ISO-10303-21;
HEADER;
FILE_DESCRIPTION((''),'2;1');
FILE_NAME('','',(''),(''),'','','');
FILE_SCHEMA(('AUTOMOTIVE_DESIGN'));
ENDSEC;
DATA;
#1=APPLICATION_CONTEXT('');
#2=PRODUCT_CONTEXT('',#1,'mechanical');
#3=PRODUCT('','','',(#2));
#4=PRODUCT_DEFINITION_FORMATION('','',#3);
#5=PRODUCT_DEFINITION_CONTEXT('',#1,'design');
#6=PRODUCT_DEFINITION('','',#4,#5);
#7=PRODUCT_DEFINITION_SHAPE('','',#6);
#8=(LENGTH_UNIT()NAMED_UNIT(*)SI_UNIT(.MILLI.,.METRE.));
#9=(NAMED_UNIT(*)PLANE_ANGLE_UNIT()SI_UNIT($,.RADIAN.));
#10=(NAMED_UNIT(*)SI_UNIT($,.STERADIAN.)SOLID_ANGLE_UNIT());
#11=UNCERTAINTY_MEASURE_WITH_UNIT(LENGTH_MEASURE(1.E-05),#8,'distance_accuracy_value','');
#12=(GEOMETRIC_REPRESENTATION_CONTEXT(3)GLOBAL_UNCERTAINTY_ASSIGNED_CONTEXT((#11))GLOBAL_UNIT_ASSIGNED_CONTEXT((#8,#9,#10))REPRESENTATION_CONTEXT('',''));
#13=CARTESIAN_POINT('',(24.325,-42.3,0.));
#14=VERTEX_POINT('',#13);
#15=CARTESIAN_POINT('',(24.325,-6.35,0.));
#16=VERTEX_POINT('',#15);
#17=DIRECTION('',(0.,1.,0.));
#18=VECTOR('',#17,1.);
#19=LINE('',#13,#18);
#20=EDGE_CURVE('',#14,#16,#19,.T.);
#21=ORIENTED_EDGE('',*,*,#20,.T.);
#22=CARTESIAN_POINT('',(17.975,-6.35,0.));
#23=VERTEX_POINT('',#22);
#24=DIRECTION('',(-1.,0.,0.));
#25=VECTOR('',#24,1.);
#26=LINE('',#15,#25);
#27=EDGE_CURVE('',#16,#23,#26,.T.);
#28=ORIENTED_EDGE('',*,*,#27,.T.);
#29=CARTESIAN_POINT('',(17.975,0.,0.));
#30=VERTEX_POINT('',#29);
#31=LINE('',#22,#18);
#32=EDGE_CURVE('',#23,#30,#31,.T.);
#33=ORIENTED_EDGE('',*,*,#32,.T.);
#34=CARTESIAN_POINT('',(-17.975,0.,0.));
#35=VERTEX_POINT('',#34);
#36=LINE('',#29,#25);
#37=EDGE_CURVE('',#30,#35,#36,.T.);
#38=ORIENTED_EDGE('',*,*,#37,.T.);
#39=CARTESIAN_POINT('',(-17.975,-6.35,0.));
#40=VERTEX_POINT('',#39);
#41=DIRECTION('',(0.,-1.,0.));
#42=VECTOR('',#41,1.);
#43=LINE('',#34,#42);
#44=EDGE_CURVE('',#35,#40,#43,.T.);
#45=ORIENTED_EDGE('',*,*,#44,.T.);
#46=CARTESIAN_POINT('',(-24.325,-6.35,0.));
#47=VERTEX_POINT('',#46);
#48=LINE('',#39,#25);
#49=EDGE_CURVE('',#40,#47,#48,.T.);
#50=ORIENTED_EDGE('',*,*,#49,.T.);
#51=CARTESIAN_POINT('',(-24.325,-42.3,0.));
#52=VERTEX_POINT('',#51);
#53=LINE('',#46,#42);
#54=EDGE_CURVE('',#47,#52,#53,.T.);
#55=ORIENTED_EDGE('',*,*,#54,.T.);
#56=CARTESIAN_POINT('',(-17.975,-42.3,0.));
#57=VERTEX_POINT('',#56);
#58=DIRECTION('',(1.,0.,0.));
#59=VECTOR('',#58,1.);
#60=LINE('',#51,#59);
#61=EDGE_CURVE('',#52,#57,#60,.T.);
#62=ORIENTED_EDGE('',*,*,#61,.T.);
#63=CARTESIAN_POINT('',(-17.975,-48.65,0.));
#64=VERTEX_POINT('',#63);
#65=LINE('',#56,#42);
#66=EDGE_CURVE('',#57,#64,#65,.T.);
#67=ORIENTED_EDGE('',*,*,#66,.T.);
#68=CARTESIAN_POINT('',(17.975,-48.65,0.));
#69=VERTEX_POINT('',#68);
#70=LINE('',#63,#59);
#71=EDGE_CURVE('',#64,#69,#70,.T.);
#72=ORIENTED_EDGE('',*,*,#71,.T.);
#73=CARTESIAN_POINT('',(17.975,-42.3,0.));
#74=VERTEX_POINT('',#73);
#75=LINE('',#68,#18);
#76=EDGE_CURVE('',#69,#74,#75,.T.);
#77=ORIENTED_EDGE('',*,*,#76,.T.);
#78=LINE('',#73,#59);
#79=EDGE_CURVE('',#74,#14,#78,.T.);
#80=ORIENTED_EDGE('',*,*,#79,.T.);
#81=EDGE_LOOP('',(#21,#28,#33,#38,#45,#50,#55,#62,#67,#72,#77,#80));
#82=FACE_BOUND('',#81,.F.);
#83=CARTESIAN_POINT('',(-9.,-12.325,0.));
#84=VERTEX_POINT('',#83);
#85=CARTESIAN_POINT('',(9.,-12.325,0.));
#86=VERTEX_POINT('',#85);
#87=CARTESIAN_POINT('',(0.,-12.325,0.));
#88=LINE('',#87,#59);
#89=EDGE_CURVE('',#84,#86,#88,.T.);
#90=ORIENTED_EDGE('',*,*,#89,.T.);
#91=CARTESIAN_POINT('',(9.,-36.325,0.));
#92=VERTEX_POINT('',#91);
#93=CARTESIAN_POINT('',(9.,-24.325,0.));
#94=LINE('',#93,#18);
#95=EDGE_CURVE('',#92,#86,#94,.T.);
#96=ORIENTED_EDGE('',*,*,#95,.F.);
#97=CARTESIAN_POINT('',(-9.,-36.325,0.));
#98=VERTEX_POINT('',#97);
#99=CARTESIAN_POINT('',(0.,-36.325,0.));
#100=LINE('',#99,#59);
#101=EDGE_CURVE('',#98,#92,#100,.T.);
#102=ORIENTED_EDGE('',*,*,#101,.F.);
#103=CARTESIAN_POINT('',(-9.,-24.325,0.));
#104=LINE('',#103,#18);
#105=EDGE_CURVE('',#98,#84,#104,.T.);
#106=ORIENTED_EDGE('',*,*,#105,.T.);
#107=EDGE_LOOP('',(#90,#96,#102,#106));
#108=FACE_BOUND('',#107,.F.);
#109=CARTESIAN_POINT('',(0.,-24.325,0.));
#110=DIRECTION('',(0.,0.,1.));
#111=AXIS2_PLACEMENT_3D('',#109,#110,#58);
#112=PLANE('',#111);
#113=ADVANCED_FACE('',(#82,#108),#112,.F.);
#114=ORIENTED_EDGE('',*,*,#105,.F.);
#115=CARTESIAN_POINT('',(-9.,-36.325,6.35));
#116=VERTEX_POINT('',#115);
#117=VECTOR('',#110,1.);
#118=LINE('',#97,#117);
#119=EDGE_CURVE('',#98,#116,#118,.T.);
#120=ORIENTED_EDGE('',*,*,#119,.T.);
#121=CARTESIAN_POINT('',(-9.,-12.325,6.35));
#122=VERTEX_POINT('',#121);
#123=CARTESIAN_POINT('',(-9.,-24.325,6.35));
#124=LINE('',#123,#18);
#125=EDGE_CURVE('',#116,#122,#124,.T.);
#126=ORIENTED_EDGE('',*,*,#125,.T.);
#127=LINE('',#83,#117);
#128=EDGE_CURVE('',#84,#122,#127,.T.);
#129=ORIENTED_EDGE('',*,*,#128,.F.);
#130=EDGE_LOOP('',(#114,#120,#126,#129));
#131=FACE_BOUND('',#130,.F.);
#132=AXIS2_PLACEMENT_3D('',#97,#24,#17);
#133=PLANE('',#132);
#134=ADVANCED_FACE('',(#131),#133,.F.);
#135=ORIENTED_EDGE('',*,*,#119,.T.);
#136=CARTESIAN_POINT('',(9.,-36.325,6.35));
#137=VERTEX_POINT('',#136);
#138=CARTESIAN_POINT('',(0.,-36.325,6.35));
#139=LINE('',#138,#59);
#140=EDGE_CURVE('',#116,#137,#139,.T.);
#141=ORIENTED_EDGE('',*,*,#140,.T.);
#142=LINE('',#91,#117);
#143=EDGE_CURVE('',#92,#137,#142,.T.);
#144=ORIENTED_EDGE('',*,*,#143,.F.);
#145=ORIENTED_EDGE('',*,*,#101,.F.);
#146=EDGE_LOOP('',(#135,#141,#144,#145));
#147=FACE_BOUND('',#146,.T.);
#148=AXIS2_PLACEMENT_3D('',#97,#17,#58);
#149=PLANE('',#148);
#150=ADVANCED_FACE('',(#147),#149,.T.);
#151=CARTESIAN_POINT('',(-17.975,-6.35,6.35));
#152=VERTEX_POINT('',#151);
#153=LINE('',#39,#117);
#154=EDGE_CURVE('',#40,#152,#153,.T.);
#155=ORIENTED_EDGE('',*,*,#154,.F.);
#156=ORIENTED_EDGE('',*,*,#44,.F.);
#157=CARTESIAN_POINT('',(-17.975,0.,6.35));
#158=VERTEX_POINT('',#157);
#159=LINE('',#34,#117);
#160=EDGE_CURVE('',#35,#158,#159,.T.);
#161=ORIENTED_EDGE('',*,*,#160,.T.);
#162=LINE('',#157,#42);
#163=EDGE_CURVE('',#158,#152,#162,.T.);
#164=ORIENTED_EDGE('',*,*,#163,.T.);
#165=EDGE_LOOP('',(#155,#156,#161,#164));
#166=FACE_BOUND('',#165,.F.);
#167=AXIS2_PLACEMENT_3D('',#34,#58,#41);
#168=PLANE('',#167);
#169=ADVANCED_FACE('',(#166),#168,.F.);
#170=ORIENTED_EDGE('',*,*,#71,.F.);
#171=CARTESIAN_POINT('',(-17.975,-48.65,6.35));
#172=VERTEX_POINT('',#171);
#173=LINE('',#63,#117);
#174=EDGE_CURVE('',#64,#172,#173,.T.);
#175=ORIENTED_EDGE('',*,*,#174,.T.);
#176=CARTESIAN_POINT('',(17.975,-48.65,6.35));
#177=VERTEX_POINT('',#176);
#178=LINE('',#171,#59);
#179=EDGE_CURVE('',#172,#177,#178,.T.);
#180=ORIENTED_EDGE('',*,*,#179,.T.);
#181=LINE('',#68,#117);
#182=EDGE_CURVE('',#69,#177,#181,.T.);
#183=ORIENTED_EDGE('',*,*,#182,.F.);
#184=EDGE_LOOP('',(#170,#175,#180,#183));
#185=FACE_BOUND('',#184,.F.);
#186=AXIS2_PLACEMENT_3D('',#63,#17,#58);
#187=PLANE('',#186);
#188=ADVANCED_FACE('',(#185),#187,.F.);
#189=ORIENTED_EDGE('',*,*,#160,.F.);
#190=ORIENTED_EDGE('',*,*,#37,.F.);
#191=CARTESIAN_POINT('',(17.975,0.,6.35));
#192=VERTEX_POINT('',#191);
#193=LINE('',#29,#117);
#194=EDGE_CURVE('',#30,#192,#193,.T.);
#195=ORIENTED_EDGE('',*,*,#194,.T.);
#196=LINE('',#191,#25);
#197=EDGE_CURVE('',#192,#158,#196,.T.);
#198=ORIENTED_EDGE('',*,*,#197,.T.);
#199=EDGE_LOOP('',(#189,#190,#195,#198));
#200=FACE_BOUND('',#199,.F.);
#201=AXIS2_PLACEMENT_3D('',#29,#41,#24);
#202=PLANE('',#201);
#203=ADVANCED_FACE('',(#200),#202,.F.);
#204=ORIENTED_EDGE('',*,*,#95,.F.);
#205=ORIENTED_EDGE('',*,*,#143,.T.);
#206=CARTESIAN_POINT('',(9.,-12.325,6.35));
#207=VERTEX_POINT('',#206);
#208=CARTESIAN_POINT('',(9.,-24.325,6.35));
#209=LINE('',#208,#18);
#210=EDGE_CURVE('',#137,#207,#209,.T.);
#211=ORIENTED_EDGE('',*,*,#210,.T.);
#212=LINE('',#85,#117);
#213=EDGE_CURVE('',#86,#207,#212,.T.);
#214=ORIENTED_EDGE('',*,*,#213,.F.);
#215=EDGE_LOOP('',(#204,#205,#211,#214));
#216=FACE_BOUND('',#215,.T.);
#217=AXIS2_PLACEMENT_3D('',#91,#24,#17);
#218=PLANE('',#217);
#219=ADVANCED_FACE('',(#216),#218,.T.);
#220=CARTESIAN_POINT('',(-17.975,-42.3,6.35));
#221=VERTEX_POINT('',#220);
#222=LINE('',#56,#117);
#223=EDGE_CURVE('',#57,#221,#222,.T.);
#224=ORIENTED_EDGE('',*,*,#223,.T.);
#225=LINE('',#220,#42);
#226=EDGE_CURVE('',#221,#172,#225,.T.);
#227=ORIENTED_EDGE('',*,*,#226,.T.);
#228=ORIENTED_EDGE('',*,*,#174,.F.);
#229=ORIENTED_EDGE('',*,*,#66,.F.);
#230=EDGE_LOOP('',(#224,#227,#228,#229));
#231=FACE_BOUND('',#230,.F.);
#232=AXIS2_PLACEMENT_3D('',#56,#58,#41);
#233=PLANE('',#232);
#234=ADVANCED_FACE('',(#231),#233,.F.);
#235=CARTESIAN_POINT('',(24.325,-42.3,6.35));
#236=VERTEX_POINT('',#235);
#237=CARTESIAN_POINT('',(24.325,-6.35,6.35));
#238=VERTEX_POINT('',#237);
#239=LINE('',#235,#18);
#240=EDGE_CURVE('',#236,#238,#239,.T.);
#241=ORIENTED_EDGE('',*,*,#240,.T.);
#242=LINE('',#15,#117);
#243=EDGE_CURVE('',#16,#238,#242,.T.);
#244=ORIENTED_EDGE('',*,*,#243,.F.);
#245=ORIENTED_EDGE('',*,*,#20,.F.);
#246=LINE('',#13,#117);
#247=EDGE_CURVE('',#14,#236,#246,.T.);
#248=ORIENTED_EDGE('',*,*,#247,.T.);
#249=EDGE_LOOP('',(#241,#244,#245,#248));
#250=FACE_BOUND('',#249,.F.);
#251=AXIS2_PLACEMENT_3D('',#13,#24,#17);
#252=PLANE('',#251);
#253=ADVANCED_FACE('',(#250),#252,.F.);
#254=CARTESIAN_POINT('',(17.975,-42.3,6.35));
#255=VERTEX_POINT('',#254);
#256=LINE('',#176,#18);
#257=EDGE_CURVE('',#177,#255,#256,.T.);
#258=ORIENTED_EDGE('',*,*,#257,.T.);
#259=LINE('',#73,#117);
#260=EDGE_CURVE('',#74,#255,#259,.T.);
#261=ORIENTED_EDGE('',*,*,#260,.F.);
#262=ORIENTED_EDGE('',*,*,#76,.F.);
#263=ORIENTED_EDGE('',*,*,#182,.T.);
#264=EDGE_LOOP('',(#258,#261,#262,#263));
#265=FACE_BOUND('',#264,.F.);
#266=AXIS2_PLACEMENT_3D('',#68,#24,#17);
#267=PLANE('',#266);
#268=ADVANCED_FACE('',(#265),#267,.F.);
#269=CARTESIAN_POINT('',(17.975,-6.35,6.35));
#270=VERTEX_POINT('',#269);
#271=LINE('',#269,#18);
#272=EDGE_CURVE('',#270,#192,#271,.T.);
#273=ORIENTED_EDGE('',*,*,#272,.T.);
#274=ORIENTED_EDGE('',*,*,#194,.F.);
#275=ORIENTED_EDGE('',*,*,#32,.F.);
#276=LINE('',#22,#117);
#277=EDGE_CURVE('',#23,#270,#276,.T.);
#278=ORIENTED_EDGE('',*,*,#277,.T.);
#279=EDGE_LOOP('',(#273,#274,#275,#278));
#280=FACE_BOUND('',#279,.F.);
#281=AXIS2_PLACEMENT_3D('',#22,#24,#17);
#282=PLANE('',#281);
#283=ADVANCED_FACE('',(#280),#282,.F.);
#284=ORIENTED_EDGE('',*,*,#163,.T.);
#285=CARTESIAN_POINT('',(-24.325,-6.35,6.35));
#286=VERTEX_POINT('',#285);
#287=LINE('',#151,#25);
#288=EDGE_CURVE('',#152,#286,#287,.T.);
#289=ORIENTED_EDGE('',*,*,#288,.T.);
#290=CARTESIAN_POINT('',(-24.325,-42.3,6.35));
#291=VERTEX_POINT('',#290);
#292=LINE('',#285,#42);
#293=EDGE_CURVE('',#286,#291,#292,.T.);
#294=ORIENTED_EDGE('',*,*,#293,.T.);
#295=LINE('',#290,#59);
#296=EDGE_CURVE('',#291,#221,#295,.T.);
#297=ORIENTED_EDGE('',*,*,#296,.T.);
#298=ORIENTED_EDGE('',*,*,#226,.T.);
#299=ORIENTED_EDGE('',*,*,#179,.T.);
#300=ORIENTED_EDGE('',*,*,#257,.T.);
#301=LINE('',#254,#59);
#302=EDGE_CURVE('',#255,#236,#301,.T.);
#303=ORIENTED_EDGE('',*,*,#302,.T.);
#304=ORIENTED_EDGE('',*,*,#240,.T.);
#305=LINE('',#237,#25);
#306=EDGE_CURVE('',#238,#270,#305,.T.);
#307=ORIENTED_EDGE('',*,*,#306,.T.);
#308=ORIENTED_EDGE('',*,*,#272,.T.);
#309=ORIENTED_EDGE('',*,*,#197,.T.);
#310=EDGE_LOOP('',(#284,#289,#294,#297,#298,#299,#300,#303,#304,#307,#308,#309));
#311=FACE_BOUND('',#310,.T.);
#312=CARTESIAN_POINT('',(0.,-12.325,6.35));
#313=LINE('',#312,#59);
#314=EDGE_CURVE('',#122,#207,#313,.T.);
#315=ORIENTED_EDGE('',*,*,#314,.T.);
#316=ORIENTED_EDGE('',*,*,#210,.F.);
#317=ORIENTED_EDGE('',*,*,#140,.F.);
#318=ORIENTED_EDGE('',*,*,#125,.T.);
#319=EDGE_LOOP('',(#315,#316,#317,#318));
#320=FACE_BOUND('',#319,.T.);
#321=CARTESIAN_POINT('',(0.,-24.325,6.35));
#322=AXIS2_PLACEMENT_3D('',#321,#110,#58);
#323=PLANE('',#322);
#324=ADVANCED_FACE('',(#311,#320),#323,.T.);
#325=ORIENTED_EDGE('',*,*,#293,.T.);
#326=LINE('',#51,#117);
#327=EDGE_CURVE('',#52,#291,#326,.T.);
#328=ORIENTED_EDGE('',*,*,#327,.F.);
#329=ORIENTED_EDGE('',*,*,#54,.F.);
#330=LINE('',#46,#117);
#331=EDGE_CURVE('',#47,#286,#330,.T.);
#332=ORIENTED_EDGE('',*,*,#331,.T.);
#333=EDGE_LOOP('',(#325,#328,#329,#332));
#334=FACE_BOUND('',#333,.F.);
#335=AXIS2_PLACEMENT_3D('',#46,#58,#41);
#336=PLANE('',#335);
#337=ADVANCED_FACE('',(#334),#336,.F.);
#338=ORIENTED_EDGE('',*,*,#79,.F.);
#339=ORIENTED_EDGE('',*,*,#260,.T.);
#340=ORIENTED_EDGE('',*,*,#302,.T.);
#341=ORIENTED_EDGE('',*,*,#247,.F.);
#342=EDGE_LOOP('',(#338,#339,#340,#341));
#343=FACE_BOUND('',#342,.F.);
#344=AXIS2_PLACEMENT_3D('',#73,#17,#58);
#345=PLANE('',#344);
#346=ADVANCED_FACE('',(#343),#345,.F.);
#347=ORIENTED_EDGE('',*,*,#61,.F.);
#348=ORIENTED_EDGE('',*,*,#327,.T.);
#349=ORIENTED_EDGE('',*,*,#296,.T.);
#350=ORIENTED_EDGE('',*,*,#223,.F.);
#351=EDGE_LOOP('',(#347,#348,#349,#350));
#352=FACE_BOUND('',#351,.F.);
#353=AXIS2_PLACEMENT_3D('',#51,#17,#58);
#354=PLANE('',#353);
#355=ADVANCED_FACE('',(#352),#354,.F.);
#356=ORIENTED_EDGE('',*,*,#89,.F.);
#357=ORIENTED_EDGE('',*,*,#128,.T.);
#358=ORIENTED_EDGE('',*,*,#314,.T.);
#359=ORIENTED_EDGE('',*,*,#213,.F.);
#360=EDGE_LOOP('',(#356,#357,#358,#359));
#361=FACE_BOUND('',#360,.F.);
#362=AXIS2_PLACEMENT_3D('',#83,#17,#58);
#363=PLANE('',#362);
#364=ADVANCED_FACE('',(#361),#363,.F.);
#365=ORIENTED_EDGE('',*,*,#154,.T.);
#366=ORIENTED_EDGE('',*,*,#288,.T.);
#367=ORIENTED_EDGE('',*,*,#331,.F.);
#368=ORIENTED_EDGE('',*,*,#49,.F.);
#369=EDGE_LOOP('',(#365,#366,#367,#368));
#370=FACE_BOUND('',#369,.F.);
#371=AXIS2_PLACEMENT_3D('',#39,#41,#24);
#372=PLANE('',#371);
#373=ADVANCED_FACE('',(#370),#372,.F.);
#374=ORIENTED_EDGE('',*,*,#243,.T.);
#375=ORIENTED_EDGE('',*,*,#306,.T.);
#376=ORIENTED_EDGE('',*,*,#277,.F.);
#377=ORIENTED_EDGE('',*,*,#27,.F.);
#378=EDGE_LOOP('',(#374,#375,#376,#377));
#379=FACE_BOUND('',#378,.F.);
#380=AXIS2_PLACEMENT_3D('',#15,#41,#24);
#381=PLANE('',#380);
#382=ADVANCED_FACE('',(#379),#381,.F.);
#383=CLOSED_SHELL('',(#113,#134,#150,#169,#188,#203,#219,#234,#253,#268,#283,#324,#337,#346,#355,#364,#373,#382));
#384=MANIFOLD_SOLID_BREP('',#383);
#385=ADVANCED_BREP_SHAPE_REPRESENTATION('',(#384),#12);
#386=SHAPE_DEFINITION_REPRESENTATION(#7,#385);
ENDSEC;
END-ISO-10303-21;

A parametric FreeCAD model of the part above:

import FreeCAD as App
import Part
import Sketcher
from FreeCAD import Vector


def add_polygon(sketch, points):
    """Adds a closed chain of lines whose ends are joined by coincident constraints."""
    first, n = sketch.GeometryCount, len(points)
    for a, b in zip(points, points[1:] + points[:1]):
        sketch.addGeometry(Part.LineSegment(App.Vector(*a, 0), App.Vector(*b, 0)), False)
    for i in range(n):
        sketch.addConstraint(Sketcher.Constraint("Coincident", first + i, 2, first + (i + 1) % n, 1))

doc = App.newDocument("Part")
body = doc.addObject("PartDesign::Body", "Body")

# Sketch on XY plane
sketch1 = body.newObject("Sketcher::SketchObject", "Sketch")
sketch1.AttachmentSupport = (doc.getObject("XY_Plane"), [""])
sketch1.MapMode = "FlatFace"
add_polygon(sketch1, [(18, 0), (-18, 0), (-18, -6), (-24, -6), (-24, -42), (-18, -42), (-18, -49), (18, -49), (18, -42), (24, -42), (24, -6), (18, -6)])  # lines 0-11
add_polygon(sketch1, [(9, -36), (-9, -36), (-9, -12), (9, -12)])  # lines 12-15
sketch1.addConstraint([
    Sketcher.Constraint("Horizontal", 0),
    Sketcher.Constraint("Vertical", 1),
    Sketcher.Constraint("Horizontal", 2),
    Sketcher.Constraint("Vertical", 3),
    Sketcher.Constraint("Horizontal", 4),
    Sketcher.Constraint("Vertical", 5),
    Sketcher.Constraint("Horizontal", 6),
    Sketcher.Constraint("Vertical", 7),
    Sketcher.Constraint("Horizontal", 8),
    Sketcher.Constraint("Vertical", 9),
    Sketcher.Constraint("Horizontal", 10),
    Sketcher.Constraint("Vertical", 11),
    Sketcher.Constraint("Horizontal", 12),
    Sketcher.Constraint("Vertical", 13),
    Sketcher.Constraint("Horizontal", 14),
    Sketcher.Constraint("Vertical", 15),
    Sketcher.Constraint("Symmetric", 0, 2, 11, 2, -1, 1),
    Sketcher.Constraint("Symmetric", 4, 2, 7, 2, -2),
    Sketcher.Constraint("Symmetric", 2, 2, 9, 2, -2),
    Sketcher.Constraint("Vertical", 1, 2, 4, 2),
    Sketcher.Constraint("Equal", 10, 1),
    Sketcher.Constraint("Equal", 6, 3),
    Sketcher.Constraint("Equal", 1, 5),
    Sketcher.Constraint("DistanceX", 12, 2, 12, 1, 18.0),
    Sketcher.Constraint("DistanceY", 13, 1, 13, 2, 24.0),
    Sketcher.Constraint("DistanceX", 12, 2, -1, 1, 9.0),
    Sketcher.Constraint("DistanceX", 0, 2, 0, 1, 35.95),
    Sketcher.Constraint("DistanceX", 2, 2, 2, 1, 6.35),
    Sketcher.Constraint("DistanceY", 12, 2, -1, 1, 36.325),
])
pad1 = body.newObject("PartDesign::Pad", "Pad")
pad1.Profile = sketch1
pad1.Length = 6.35

doc.recompute()
